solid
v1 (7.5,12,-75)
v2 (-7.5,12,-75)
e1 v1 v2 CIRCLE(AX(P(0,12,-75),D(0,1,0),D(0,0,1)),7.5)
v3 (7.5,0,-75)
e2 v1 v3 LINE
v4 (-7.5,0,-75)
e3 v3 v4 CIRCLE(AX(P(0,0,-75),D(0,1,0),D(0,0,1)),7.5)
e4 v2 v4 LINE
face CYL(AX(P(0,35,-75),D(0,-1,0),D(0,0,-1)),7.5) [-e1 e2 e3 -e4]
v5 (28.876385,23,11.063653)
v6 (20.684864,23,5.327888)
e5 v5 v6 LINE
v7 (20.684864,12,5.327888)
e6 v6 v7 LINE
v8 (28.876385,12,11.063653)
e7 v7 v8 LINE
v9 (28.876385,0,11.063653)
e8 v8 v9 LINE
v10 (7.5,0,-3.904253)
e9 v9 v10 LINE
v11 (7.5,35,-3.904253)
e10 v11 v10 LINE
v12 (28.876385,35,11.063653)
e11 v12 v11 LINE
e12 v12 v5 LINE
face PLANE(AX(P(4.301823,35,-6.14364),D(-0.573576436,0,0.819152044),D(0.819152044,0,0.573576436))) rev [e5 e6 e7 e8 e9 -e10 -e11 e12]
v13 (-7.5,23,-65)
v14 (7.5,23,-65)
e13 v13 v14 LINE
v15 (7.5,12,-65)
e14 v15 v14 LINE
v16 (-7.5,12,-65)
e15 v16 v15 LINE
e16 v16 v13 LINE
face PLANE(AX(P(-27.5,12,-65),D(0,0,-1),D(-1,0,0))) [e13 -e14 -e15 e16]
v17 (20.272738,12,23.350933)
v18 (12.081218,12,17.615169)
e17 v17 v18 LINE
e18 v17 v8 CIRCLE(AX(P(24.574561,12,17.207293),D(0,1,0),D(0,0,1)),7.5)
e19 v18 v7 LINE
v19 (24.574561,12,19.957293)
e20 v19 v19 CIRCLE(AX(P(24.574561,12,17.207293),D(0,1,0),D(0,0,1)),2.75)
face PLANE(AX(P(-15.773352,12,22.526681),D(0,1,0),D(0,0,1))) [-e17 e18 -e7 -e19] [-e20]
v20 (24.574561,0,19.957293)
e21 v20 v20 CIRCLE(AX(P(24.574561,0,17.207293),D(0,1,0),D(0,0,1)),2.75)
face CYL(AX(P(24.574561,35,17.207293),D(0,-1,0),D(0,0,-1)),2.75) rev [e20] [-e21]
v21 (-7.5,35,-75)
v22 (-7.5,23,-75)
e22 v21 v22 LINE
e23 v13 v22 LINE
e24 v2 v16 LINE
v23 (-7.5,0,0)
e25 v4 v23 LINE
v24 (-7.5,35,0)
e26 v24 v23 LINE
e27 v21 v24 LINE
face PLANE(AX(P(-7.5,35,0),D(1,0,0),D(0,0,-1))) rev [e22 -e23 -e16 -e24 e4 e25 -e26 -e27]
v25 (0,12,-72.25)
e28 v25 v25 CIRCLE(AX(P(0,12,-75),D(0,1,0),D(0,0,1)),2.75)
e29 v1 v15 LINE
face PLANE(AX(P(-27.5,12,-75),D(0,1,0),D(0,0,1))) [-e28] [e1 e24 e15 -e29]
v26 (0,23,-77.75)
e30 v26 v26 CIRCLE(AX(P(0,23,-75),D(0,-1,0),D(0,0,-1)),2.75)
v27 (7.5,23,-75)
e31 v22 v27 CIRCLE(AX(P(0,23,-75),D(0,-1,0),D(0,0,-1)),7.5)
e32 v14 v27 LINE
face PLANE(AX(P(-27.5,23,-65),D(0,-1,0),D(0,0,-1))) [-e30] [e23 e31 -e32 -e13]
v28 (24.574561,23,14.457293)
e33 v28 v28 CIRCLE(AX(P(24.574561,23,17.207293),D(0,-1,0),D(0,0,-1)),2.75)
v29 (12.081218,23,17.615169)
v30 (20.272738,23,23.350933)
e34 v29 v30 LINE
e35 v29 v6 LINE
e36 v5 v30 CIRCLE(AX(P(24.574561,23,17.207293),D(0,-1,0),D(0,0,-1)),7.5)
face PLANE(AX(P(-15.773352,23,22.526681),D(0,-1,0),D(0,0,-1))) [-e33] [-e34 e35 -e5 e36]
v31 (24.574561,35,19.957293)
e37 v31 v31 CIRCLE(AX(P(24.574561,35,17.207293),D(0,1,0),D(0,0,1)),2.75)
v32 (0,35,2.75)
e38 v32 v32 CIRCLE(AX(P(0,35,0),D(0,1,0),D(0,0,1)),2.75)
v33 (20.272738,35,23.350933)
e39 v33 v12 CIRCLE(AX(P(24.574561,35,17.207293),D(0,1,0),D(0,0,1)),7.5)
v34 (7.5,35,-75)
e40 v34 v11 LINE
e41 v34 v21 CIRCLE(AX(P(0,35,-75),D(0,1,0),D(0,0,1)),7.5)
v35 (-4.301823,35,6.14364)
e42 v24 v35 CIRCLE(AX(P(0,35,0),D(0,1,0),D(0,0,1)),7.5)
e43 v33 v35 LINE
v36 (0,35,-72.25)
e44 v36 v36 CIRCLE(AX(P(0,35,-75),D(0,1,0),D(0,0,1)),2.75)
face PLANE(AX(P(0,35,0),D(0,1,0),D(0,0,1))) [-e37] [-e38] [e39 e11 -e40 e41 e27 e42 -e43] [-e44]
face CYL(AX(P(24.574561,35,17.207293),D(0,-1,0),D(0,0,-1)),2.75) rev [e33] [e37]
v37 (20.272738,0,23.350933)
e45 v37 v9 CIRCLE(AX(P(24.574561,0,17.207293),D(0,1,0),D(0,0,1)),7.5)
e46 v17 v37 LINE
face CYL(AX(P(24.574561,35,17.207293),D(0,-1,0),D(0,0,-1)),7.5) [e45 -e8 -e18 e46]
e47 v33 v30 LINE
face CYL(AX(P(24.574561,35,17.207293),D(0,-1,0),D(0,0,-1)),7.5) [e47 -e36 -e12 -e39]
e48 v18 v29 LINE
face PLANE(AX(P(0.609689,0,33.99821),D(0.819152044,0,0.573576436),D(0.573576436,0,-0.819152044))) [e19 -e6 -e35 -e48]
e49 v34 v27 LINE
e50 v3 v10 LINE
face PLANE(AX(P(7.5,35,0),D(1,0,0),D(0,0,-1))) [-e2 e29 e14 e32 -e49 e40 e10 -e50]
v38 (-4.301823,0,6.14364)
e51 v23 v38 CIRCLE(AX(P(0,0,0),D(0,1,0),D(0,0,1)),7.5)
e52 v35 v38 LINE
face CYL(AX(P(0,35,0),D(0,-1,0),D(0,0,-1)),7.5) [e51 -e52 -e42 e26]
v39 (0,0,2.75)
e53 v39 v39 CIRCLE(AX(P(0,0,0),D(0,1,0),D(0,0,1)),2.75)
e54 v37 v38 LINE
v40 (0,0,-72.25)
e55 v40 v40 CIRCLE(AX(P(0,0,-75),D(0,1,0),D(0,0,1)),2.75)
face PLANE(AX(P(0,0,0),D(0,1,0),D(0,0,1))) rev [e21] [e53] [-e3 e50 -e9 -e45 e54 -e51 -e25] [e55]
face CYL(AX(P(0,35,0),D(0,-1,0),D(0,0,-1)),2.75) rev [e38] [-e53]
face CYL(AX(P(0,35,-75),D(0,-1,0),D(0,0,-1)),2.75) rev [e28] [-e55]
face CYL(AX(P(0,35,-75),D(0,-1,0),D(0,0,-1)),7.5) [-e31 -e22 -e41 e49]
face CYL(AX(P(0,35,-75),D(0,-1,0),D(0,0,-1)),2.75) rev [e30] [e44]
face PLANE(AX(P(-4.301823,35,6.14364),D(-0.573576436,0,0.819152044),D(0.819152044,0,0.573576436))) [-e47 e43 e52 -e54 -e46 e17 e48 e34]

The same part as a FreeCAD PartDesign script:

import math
import FreeCAD as App
import Part
import Sketcher

V = App.Vector
Q = App.Units.Quantity


def add_polygon(sketch, points):
    """Adds a closed chain of lines whose ends are joined by coincident constraints."""
    first, n = sketch.GeometryCount, len(points)
    for a, b in zip(points, points[1:] + points[:1]):
        sketch.addGeometry(Part.LineSegment(App.Vector(*a, 0), App.Vector(*b, 0)), False)
    for i in range(n):
        sketch.addConstraint(Sketcher.Constraint("Coincident", first + i, 2, first + (i + 1) % n, 1))

doc = App.newDocument("Part")
body = doc.addObject("PartDesign::Body", "Body")

# Sketch on XZ plane
sketch1 = body.newObject("Sketcher::SketchObject", "Sketch")
sketch1.AttachmentSupport = (doc.getObject("XZ_Plane"), [""])
sketch1.MapMode = "FlatFace"
sketch1.addGeometry([
    Part.LineSegment(V(7.5, -3.904253, 0), V(7.5, -75, 0)),  # 0
    Part.ArcOfCircle(Part.Circle(V(0, -75, 0), V(0, 0, 1), 7.5), math.radians(180), math.radians(360)),  # 1
    Part.LineSegment(V(-7.5, -75, 0), V(-7.5, 0, 0)),  # 2
    Part.ArcOfCircle(Part.Circle(V(0, 0, 0), V(0, 0, 1), 7.5), math.radians(125), math.radians(180)),  # 3
    Part.LineSegment(V(-4.301823, 6.14364, 0), V(20.272738, 23.350933, 0)),  # 4
    Part.ArcOfCircle(Part.Circle(V(24.574561, 17.207293, 0), V(0, 0, 1), 7.5), math.radians(-55), math.radians(125)),  # 5
    Part.LineSegment(V(28.876385, 11.063653, 0), V(7.5, -3.904253, 0)),  # 6
    Part.Circle(V(0, 0, 0), V(0, 0, 1), 2.75),  # 7
    Part.Circle(V(24.574561, 17.207293, 0), V(0, 0, 1), 2.75),  # 8
    Part.Circle(V(0, -75, 0), V(0, 0, 1), 2.75),  # 9
], False)
sketch1.addConstraint([
    Sketcher.Constraint("Tangent", 0, 2, 1, 2),
    Sketcher.Constraint("Tangent", 1, 1, 2, 1),
    Sketcher.Constraint("Tangent", 2, 2, 3, 2),
    Sketcher.Constraint("Tangent", 3, 1, 4, 1),
    Sketcher.Constraint("Tangent", 4, 2, 5, 2),
    Sketcher.Constraint("Tangent", 5, 1, 6, 1),
    Sketcher.Constraint("Coincident", 6, 2, 0, 1),
    Sketcher.Constraint("Vertical", 0),
    Sketcher.Constraint("Vertical", 2),
    Sketcher.Constraint("Coincident", 3, 3, -1, 1),
    Sketcher.Constraint("Coincident", 7, 3, -1, 1),
    Sketcher.Constraint("Coincident", 8, 3, 5, 3),
    Sketcher.Constraint("Coincident", 9, 3, 1, 3),
    Sketcher.Constraint("Equal", 1, 3),
    Sketcher.Constraint("Equal", 3, 5),
    Sketcher.Constraint("Equal", 7, 8),
    Sketcher.Constraint("Equal", 8, 9),
    Sketcher.Constraint("Parallel", 4, 6),
    Sketcher.Constraint("Diameter", 7, Q("5.5 mm")),
    Sketcher.Constraint("Radius", 1, Q("7.5 mm")),
    Sketcher.Constraint("DistanceY", 2, 1, 2, 2, Q("75 mm")),
    Sketcher.Constraint("Angle", 4, Q("35 deg")),
    Sketcher.Constraint("Distance", 4, Q("30 mm")),
])
pad1 = body.newObject("PartDesign::Pad", "Pad")
pad1.Profile = sketch1
pad1.Length = 35
pad1.Reversed = True

# Sketch on YZ plane
sketch2 = body.newObject("Sketcher::SketchObject", "Sketch001")
sketch2.AttachmentSupport = (doc.getObject("YZ_Plane"), [""])
sketch2.MapMode = "FlatFace"
sketch2.AttachmentOffset = App.Placement(V(0, 0, 7.5), App.Rotation())
add_polygon(sketch2, [(12, -65), (12, -87.183204), (23, -87.183204), (23, -65)])  # lines 0-3
sketch2.addConstraint([
    Sketcher.Constraint("Vertical", 0),
    Sketcher.Constraint("Horizontal", 1),
    Sketcher.Constraint("Vertical", 2),
    Sketcher.Constraint("Horizontal", 3),
    Sketcher.Constraint("DistanceX", 1, 1, 1, 2, Q("11 mm")),
    Sketcher.Constraint("DistanceX", -1, 1, 0, 2, Q("12 mm")),
    Sketcher.Constraint("DistanceY", 2, 2, -1, 1, Q("65 mm")),
    Sketcher.Constraint("DistanceY", 0, 2, 0, 1, Q("22.183204 mm")),
])
pocket1 = body.newObject("PartDesign::Pocket", "Pocket")
pocket1.Profile = sketch2
pocket1.Length = 35

# Sketch on an angled plane
sketch3 = body.newObject("Sketcher::SketchObject", "Sketch002")
sketch3.Placement = App.Placement(V(4.301823, 0, -6.14364), App.Rotation(V(-0.819152044, 0, -0.573576436), V(0, 0.999999999, 0), V(0.573576436, 0, -0.819152044), "ZXY"))
add_polygon(sketch3, [(-43.630298, 23), (-43.630298, 12), (-20, 12), (-20, 23)])  # lines 0-3
sketch3.addConstraint([
    Sketcher.Constraint("Vertical", 0),
    Sketcher.Constraint("Horizontal", 1),
    Sketcher.Constraint("Vertical", 2),
    Sketcher.Constraint("Horizontal", 3),
    Sketcher.Constraint("DistanceY", 0, 2, 0, 1, Q("11 mm")),
    Sketcher.Constraint("DistanceY", -1, 1, 0, 2, Q("12 mm")),
    Sketcher.Constraint("DistanceX", 1, 2, -1, 1, Q("20 mm")),
    Sketcher.Constraint("DistanceX", 1, 1, 1, 2, Q("23.630299 mm")),
])
pocket2 = body.newObject("PartDesign::Pocket", "Pocket001")
pocket2.Profile = sketch3
pocket2.Length = 35

doc.recompute()
